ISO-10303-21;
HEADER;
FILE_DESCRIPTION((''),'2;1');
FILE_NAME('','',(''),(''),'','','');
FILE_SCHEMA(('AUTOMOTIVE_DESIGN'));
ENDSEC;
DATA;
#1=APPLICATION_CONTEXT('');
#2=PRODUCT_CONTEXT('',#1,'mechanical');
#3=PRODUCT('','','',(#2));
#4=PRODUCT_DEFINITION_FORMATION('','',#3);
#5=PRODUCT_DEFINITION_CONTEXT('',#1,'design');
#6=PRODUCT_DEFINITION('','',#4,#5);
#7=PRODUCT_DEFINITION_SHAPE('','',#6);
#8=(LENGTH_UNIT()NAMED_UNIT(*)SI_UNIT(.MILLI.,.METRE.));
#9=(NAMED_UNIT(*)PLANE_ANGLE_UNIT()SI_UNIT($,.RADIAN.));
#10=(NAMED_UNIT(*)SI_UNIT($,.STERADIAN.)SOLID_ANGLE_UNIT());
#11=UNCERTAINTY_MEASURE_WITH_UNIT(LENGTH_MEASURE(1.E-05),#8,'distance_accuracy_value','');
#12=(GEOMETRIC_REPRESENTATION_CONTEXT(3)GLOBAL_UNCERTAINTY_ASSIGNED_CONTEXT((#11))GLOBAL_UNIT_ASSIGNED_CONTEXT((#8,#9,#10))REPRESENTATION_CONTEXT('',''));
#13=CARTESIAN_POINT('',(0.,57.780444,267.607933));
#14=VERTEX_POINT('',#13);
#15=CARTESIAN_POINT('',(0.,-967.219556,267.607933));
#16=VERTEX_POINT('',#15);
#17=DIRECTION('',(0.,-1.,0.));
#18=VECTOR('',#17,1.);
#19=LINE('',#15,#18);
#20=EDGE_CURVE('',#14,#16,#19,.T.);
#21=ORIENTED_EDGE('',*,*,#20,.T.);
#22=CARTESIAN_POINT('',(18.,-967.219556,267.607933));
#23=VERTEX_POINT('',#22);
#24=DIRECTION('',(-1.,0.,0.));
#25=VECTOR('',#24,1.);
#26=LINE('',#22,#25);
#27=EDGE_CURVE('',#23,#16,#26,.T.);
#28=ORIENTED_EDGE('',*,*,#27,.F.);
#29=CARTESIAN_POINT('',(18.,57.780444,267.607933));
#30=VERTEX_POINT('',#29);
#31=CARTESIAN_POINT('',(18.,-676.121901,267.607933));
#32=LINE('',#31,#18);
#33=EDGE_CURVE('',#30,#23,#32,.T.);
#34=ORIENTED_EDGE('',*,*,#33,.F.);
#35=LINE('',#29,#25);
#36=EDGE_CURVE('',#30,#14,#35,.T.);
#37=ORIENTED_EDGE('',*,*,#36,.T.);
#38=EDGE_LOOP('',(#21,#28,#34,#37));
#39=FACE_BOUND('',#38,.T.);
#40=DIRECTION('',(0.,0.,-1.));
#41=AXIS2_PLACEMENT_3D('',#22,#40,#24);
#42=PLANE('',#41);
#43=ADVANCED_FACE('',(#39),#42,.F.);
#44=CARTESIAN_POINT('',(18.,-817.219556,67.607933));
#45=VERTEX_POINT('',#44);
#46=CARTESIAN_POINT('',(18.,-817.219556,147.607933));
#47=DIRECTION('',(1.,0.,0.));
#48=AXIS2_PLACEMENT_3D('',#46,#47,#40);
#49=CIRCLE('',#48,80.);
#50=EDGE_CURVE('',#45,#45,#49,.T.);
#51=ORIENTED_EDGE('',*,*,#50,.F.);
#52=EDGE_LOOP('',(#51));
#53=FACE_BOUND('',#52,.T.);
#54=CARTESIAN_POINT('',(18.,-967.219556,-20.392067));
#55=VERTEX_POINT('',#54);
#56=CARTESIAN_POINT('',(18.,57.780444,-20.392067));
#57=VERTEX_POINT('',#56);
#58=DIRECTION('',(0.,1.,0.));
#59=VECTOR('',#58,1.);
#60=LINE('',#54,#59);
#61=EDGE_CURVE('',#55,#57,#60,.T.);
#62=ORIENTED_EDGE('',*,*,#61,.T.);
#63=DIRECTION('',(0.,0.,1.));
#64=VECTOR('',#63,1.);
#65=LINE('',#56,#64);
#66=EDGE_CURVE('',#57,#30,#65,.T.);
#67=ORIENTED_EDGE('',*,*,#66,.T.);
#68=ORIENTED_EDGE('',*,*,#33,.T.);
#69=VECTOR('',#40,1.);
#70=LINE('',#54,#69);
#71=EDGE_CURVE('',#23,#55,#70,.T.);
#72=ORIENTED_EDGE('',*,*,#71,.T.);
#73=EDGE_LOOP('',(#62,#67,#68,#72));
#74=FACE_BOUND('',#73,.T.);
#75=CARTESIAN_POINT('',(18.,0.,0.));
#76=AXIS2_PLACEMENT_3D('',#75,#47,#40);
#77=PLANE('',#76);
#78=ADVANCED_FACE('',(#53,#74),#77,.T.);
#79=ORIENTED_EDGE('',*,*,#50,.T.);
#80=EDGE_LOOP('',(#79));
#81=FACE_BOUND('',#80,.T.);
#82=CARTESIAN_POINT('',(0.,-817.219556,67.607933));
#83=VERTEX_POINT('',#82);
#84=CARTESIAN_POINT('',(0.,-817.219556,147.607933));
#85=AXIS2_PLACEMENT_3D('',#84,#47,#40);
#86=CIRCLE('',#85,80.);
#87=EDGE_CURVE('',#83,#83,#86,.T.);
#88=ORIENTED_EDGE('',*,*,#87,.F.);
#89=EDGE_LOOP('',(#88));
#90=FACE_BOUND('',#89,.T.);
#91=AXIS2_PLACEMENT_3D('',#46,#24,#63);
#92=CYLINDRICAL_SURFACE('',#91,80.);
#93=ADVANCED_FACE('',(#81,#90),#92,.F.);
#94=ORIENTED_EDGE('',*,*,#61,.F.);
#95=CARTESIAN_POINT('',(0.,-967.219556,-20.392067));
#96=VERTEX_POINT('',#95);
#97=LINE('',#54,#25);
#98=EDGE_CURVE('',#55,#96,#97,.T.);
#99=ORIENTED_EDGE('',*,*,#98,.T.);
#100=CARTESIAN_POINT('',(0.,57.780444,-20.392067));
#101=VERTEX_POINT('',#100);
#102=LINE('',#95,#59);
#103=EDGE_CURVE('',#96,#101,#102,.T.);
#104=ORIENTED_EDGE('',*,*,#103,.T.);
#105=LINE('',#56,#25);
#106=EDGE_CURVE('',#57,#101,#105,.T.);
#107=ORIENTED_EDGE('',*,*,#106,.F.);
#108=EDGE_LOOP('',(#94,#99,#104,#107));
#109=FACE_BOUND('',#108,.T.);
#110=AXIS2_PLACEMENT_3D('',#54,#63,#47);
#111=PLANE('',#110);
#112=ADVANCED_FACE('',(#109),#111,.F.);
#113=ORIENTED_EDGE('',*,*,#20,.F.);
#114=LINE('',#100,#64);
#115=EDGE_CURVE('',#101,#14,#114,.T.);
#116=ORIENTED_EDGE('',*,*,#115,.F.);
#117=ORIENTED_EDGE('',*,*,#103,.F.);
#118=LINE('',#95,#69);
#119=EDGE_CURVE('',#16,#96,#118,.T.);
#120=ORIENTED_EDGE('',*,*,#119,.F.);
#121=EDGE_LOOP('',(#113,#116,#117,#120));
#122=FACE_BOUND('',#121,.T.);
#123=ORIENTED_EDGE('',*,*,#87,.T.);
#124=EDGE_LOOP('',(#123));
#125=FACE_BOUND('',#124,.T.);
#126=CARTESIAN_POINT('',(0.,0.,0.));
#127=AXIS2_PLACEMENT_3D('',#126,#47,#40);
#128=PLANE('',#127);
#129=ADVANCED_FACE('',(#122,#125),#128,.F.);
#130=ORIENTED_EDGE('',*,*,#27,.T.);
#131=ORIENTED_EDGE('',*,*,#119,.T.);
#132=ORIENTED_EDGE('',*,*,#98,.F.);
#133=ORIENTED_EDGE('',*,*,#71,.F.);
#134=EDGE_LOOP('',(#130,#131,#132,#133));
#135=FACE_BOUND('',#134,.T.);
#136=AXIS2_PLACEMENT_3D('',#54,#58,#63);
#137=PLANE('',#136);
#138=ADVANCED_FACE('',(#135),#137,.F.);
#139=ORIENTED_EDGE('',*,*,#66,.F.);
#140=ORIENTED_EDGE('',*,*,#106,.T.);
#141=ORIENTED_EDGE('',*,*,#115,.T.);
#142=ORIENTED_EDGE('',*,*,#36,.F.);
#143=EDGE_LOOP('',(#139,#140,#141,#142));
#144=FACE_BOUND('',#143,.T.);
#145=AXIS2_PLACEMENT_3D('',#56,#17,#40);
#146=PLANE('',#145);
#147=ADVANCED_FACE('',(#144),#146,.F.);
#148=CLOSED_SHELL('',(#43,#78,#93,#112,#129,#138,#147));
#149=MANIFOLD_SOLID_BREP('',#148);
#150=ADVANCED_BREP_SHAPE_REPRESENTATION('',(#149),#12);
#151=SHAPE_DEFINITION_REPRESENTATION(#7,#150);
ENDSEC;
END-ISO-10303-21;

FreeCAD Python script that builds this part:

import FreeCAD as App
import Part
import Sketcher
Q = App.Units.Quantity


def add_polygon(sketch, points):
    """Adds a closed chain of lines whose ends are joined by coincident constraints."""
    first, n = sketch.GeometryCount, len(points)
    for a, b in zip(points, points[1:] + points[:1]):
        sketch.addGeometry(Part.LineSegment(App.Vector(*a, 0), App.Vector(*b, 0)), False)
    for i in range(n):
        sketch.addConstraint(Sketcher.Constraint("Coincident", first + i, 2, first + (i + 1) % n, 1))

doc = App.newDocument("Part")
body = doc.addObject("PartDesign::Body", "Body")

# Sketch on YZ plane
sketch1 = body.newObject("Sketcher::SketchObject", "Sketch")
sketch1.AttachmentSupport = (doc.getObject("YZ_Plane"), [""])
sketch1.MapMode = "FlatFace"
add_polygon(sketch1, [(-967, 268), (-967, -20), (58, -20), (58, 268)])  # lines 0-3
sketch1.addGeometry(Part.Circle(App.Vector(-817, 148, 0), App.Vector(0, 0, 1), 80), False)  # 4
sketch1.addConstraint([
    Sketcher.Constraint("Vertical", 0),
    Sketcher.Constraint("Horizontal", 1),
    Sketcher.Constraint("Vertical", 2),
    Sketcher.Constraint("Horizontal", 3),
    Sketcher.Constraint("Diameter", 4, Q("160 mm")),
    Sketcher.Constraint("DistanceX", 1, 1, 1, 2, Q("1025 mm")),
    Sketcher.Constraint("DistanceY", 0, 2, 0, 1, Q("288 mm")),
    Sketcher.Constraint("DistanceX", 0, 2, 4, 3, Q("150 mm")),
    Sketcher.Constraint("DistanceY", 0, 2, 4, 3, Q("168 mm")),
    Sketcher.Constraint("DistanceX", 4, 3, -1, 1, Q("817.219556 mm")),
    Sketcher.Constraint("DistanceY", -1, 1, 4, 3, Q("147.607933 mm")),
])
pad1 = body.newObject("PartDesign::Pad", "Pad")
pad1.Profile = sketch1
pad1.Length = 18

doc.recompute()
